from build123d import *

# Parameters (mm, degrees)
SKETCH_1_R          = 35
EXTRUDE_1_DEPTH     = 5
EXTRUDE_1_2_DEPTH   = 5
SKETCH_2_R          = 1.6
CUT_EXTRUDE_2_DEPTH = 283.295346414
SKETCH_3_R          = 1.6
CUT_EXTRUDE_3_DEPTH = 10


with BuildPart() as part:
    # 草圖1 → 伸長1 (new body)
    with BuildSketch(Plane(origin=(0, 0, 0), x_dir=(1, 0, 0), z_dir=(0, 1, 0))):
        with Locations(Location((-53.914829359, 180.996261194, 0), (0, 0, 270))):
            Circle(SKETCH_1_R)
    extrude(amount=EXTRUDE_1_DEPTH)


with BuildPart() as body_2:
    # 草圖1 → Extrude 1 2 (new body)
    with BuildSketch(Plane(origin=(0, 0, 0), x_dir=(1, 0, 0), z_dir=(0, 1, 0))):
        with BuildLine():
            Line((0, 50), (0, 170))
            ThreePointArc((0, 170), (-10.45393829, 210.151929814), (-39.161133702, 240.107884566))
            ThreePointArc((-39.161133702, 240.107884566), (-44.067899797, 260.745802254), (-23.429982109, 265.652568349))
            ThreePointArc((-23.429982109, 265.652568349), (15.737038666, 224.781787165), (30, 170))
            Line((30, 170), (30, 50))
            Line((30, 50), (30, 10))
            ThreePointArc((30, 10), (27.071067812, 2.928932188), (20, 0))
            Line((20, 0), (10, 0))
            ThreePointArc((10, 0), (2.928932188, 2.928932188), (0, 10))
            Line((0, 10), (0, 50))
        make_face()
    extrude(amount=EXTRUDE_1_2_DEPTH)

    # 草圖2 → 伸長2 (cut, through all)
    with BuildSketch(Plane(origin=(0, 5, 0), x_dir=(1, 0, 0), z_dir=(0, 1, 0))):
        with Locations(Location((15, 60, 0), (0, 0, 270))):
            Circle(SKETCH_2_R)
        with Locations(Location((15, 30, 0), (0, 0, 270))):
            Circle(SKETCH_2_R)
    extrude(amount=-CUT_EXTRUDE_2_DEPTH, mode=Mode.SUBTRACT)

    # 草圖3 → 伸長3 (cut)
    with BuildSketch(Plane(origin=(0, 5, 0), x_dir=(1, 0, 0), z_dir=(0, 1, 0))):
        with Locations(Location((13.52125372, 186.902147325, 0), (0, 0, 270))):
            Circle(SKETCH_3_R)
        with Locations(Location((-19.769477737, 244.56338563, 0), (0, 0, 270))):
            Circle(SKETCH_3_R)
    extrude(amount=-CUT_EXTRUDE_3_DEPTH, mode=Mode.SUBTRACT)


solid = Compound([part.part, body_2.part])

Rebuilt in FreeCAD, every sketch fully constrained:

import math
import FreeCAD as App
import Part
import Sketcher
Q = App.Units.Quantity

doc = App.newDocument("Part")
body = doc.addObject("PartDesign::Body", "Body")

sketch1 = doc.addObject("Sketcher::SketchObject", "Sketch")
body.addObject(sketch1)
sketch1.AttachmentSupport = (doc.XZ_Plane, [""])
sketch1.MapMode = "FlatFace"
sketch1.addGeometry(Part.Circle(App.Vector(-54, -181, 0), App.Vector(0, 0, 1), 35), False)
sketch1.addConstraint(Sketcher.Constraint("Diameter", 0, Q("70 mm")))
sketch1.addConstraint(Sketcher.Constraint("DistanceX", 0, 3, -1, 1, Q("53.914829 mm")))
sketch1.addConstraint(Sketcher.Constraint("DistanceY", 0, 3, -1, 1, Q("180.996261 mm")))
pad1 = doc.addObject("PartDesign::Pad", "Pad")
body.addObject(pad1)
pad1.Profile = sketch1
pad1.Length = 5
pad1.Reversed = True
body2 = doc.addObject("PartDesign::Body", "Body001")

sketch2 = doc.addObject("Sketcher::SketchObject", "Sketch001")
body2.addObject(sketch2)
sketch2.AttachmentSupport = (doc.getObject("XZ_Plane001"), [""])
sketch2.MapMode = "FlatFace"
sketch2.addGeometry(Part.ArcOfCircle(Part.Circle(App.Vector(-82, -170, 0), App.Vector(0, 0, 1), 82), math.radians(-58), math.radians(0)), False)
sketch2.addGeometry(Part.LineSegment(App.Vector(0, -170, 0), App.Vector(0, -10, 0)), False)
sketch2.addGeometry(Part.ArcOfCircle(Part.Circle(App.Vector(10, -10, 0), App.Vector(0, 0, 1), 10), math.radians(90), math.radians(180)), False)
sketch2.addGeometry(Part.LineSegment(App.Vector(10, 0, 0), App.Vector(20, 0, 0)), False)
sketch2.addGeometry(Part.ArcOfCircle(Part.Circle(App.Vector(20, -10, 0), App.Vector(0, 0, 1), 10), math.radians(0), math.radians(90)), False)
sketch2.addGeometry(Part.LineSegment(App.Vector(30, -10, 0), App.Vector(30, -170, 0)), False)
sketch2.addGeometry(Part.ArcOfCircle(Part.Circle(App.Vector(-82, -170, 0), App.Vector(0, 0, 1), 112), math.radians(-58), math.radians(0)), False)
sketch2.addGeometry(Part.ArcOfCircle(Part.Circle(App.Vector(-31, -253, 0), App.Vector(0, 0, 1), 15), math.radians(122), math.radians(302)), False)
sketch2.addConstraint(Sketcher.Constraint("Tangent", 0, 2, 1, 1))
sketch2.addConstraint(Sketcher.Constraint("Tangent", 1, 2, 2, 2))
sketch2.addConstraint(Sketcher.Constraint("Tangent", 2, 1, 3, 1))
sketch2.addConstraint(Sketcher.Constraint("Tangent", 3, 2, 4, 2))
sketch2.addConstraint(Sketcher.Constraint("Tangent", 4, 1, 5, 1))
sketch2.addConstraint(Sketcher.Constraint("Tangent", 5, 2, 6, 2))
sketch2.addConstraint(Sketcher.Constraint("Tangent", 6, 1, 7, 2))
sketch2.addConstraint(Sketcher.Constraint("Tangent", 7, 1, 0, 1))
sketch2.addConstraint(Sketcher.Constraint("Vertical", 1))
sketch2.addConstraint(Sketcher.Constraint("Horizontal", 3))
sketch2.addConstraint(Sketcher.Constraint("Vertical", 5))
sketch2.addConstraint(Sketcher.Constraint("Coincident", 6, 3, 0, 3))
sketch2.addConstraint(Sketcher.Constraint("Equal", 2, 4))
sketch2.addConstraint(Sketcher.Constraint("PointOnObject", 0, 2, -2))
sketch2.addConstraint(Sketcher.Constraint("PointOnObject", 2, 1, -1))
sketch2.addConstraint(Sketcher.Constraint("Radius", 2, Q("10 mm")))
sketch2.addConstraint(Sketcher.Constraint("Radius", 7, Q("15 mm")))
sketch2.addConstraint(Sketcher.Constraint("DistanceY", 1, 1, 1, 2, Q("160 mm")))
sketch2.addConstraint(Sketcher.Constraint("Radius", 0, Q("82.335587 mm")))
sketch2.addConstraint(Sketcher.Constraint("DistanceY", 6, 1, -1, 1, Q("265.652568 mm")))
pad2 = doc.addObject("PartDesign::Pad", "Pad001")
body2.addObject(pad2)
pad2.Profile = sketch2
pad2.Length = 5
pad2.Reversed = True

sketch3 = doc.addObject("Sketcher::SketchObject", "Sketch002")
body2.addObject(sketch3)
sketch3.AttachmentSupport = (doc.getObject("XZ_Plane001"), [""])
sketch3.MapMode = "FlatFace"
sketch3.AttachmentOffset = App.Placement(App.Vector(0, 0, -5), App.Rotation())
sketch3.addGeometry(Part.Circle(App.Vector(15, -60, 0), App.Vector(0, 0, 1), 1.6), False)
sketch3.addGeometry(Part.Circle(App.Vector(15, -30, 0), App.Vector(0, 0, 1), 1.6), False)
sketch3.addConstraint(Sketcher.Constraint("Equal", 0, 1))
sketch3.addConstraint(Sketcher.Constraint("Vertical", 0, 3, 1, 3))
sketch3.addConstraint(Sketcher.Constraint("Diameter", 0, Q("3.2 mm")))
sketch3.addConstraint(Sketcher.Constraint("DistanceX", -1, 1, 0, 3, Q("15 mm")))
sketch3.addConstraint(Sketcher.Constraint("DistanceY", 0, 3, -1, 1, Q("60 mm")))
sketch3.addConstraint(Sketcher.Constraint("DistanceY", 1, 3, -1, 1, Q("30 mm")))
pocket1 = doc.addObject("PartDesign::Pocket", "Pocket")
body2.addObject(pocket1)
pocket1.Profile = sketch3
pocket1.Type = "ThroughAll"
pocket1.Reversed = True

sketch4 = doc.addObject("Sketcher::SketchObject", "Sketch003")
body2.addObject(sketch4)
sketch4.AttachmentSupport = (doc.getObject("XZ_Plane001"), [""])
sketch4.MapMode = "FlatFace"
sketch4.AttachmentOffset = App.Placement(App.Vector(0, 0, -5), App.Rotation())
sketch4.addGeometry(Part.Circle(App.Vector(13.5, -186.9, 0), App.Vector(0, 0, 1), 1.6), False)
sketch4.addGeometry(Part.Circle(App.Vector(-19.8, -244.6, 0), App.Vector(0, 0, 1), 1.6), False)
sketch4.addConstraint(Sketcher.Constraint("Equal", 0, 1))
sketch4.addConstraint(Sketcher.Constraint("Diameter", 0, Q("3.2 mm")))
sketch4.addConstraint(Sketcher.Constraint("DistanceX", 1, 3, 0, 3, Q("33.290731 mm")))
sketch4.addConstraint(Sketcher.Constraint("DistanceY", 1, 3, 0, 3, Q("57.661238 mm")))
sketch4.addConstraint(Sketcher.Constraint("DistanceX", -1, 1, 0, 3, Q("13.521254 mm")))
sketch4.addConstraint(Sketcher.Constraint("DistanceY", 0, 3, -1, 1, Q("186.902147 mm")))
pocket2 = doc.addObject("PartDesign::Pocket", "Pocket001")
body2.addObject(pocket2)
pocket2.Profile = sketch4
pocket2.Length = 10
pocket2.Reversed = True

doc.recompute()
